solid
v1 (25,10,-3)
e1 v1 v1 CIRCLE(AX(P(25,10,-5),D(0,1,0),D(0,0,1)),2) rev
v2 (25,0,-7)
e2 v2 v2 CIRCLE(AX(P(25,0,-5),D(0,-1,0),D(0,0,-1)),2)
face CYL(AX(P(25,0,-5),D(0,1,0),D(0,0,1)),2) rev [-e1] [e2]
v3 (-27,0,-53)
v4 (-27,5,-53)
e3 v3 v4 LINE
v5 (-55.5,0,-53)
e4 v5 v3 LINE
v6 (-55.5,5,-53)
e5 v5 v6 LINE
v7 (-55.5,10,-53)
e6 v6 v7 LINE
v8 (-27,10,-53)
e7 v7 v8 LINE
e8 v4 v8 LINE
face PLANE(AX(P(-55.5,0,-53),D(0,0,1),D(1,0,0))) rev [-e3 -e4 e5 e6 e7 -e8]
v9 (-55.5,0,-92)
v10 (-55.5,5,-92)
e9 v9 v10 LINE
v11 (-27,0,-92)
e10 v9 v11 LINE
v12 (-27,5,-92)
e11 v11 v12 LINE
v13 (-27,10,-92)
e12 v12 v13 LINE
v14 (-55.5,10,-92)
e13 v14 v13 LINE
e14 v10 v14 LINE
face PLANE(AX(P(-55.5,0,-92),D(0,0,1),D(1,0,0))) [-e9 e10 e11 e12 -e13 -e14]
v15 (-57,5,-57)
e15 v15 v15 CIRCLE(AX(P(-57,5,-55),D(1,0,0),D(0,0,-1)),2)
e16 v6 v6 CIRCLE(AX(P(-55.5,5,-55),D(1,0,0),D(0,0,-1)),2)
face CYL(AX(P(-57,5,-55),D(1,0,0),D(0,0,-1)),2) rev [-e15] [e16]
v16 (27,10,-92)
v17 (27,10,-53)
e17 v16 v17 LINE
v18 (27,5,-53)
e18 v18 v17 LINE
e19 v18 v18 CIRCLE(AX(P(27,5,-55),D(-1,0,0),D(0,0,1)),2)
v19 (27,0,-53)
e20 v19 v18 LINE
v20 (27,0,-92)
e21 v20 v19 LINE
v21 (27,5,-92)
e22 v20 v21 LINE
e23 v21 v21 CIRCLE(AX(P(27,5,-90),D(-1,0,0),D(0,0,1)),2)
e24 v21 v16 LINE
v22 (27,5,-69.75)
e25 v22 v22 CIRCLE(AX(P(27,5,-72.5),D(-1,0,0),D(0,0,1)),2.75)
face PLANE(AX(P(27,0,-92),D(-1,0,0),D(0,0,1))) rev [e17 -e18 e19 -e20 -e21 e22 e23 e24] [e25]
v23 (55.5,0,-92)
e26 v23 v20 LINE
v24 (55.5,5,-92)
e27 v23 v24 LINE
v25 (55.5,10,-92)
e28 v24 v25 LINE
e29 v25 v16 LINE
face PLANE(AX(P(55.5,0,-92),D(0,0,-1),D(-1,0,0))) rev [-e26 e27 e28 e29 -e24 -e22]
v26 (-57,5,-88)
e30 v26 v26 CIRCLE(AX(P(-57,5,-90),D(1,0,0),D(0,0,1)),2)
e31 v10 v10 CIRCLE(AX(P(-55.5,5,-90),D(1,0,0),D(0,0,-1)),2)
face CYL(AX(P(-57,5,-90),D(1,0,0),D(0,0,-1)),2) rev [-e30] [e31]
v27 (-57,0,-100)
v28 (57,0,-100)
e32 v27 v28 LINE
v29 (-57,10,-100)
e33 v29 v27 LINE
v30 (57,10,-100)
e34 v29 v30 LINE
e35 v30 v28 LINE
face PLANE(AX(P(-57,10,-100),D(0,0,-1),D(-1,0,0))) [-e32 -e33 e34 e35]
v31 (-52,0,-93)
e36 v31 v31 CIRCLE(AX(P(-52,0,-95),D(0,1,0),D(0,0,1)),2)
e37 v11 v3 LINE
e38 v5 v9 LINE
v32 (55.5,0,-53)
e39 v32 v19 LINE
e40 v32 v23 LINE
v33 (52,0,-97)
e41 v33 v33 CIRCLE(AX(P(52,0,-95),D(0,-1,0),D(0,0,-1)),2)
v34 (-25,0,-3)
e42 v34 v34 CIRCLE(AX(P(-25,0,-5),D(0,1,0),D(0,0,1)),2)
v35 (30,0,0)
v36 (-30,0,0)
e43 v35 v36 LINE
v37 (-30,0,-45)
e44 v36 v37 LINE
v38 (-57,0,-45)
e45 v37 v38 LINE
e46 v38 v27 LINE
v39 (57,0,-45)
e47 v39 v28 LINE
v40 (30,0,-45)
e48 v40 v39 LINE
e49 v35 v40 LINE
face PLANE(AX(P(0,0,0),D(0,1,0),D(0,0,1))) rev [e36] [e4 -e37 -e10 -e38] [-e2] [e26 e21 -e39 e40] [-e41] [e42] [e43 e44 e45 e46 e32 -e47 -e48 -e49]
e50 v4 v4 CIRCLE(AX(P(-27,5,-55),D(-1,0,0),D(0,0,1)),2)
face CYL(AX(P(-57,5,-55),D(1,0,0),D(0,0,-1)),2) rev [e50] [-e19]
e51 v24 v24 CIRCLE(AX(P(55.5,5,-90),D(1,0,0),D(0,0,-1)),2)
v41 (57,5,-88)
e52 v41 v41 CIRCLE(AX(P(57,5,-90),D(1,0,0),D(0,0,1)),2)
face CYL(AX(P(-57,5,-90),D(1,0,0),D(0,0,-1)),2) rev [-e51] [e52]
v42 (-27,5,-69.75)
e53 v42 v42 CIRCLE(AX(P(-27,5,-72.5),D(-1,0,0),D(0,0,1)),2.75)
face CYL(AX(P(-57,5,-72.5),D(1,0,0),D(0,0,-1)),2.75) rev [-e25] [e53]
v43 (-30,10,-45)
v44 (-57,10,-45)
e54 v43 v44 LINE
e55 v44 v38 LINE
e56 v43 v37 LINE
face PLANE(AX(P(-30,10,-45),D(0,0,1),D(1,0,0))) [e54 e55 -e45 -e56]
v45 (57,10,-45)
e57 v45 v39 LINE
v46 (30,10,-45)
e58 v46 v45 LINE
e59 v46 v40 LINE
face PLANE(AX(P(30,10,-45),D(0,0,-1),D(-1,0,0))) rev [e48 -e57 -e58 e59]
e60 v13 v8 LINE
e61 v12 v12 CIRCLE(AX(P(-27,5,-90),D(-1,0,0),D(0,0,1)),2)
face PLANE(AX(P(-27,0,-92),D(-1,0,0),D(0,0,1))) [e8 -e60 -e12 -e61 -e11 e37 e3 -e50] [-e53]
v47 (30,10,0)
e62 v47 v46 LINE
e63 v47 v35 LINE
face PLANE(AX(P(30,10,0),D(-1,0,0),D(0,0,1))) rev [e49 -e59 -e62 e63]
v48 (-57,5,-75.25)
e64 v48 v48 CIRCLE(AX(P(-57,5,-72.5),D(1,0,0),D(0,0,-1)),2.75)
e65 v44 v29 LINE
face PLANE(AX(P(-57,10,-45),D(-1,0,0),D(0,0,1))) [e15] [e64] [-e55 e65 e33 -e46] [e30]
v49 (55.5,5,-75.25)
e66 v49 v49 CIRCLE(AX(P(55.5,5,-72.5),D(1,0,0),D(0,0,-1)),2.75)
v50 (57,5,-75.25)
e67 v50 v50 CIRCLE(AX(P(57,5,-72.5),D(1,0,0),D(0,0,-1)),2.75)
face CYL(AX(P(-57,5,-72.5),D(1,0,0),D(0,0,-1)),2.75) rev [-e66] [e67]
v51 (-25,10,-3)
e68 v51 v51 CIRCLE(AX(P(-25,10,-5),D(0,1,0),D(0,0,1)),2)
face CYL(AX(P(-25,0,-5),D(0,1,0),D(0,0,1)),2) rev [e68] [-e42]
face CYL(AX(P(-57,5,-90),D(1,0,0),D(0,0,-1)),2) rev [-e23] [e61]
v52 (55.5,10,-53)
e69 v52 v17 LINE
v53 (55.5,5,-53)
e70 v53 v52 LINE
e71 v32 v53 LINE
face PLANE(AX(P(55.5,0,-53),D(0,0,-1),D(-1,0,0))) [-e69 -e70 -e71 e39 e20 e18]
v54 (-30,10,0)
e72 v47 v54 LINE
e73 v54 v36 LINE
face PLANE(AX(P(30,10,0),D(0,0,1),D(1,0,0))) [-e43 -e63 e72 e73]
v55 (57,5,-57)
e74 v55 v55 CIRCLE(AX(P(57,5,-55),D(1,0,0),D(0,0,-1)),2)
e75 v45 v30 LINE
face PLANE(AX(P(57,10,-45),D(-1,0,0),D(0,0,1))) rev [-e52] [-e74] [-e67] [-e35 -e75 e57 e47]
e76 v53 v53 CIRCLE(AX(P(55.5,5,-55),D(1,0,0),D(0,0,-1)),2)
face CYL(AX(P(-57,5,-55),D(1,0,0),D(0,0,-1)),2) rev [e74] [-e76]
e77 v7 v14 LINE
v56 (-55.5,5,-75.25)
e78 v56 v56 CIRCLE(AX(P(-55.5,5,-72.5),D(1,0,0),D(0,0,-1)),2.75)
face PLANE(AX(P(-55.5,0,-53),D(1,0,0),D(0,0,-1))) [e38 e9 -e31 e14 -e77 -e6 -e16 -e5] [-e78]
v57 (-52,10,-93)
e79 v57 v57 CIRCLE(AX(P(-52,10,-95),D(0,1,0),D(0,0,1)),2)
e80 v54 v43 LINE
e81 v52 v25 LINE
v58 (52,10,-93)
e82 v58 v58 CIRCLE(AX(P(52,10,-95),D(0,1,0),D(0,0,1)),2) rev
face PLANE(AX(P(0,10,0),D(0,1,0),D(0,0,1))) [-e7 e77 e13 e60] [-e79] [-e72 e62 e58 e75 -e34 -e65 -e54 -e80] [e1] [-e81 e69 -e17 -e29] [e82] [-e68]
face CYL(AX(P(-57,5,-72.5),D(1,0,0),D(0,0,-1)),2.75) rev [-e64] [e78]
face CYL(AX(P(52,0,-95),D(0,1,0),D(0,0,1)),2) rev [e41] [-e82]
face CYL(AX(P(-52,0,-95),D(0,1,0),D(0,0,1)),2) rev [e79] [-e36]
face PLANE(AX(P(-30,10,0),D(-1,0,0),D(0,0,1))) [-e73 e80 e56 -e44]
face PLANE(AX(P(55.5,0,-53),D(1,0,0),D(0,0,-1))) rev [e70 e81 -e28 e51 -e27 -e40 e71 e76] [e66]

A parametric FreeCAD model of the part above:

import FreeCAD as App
import Part
import Sketcher

V = App.Vector
Q = App.Units.Quantity


def add_polygon(sketch, points):
    """Adds a closed chain of lines whose ends are joined by coincident constraints."""
    first, n = sketch.GeometryCount, len(points)
    for a, b in zip(points, points[1:] + points[:1]):
        sketch.addGeometry(Part.LineSegment(App.Vector(*a, 0), App.Vector(*b, 0)), False)
    for i in range(n):
        sketch.addConstraint(Sketcher.Constraint("Coincident", first + i, 2, first + (i + 1) % n, 1))

doc = App.newDocument("Part")
params = doc.addObject("Spreadsheet::Sheet", "Params")
for row, (alias, value) in enumerate([
    ("sketch1_width", "60 mm"),
    ("sketch1_width2", "27 mm"),
    ("sketch1_height", "45 mm"),
    ("sketch1_height2", "55 mm"),
    ("pad1_length", "10 mm"),
    ("sketch2_diameter", "4 mm"),
    ("sketch2_height", "39 mm"),
    ("sketch2_width", "28.5 mm"),
    ("sketch3_diameter", "4 mm"),
    ("sketch3_diameter2", "5.5 mm"),
], start=1):
    params.set(f"A{row}", alias)
    params.set(f"B{row}", "=" + value)
    params.setAlias(f"B{row}", alias)

body = doc.addObject("PartDesign::Body", "Body")

sketch1 = body.newObject("Sketcher::SketchObject", "Sketch")
sketch1.AttachmentSupport = (doc.getObject("XZ_Plane"), [""])
sketch1.MapMode = "FlatFace"
add_polygon(sketch1, [(-30, 0), (30, 0), (30, -45), (57, -45), (57, -100), (-57, -100), (-57, -45), (-30, -45)])
sketch1.addConstraint([
    Sketcher.Constraint("Horizontal", 0),
    Sketcher.Constraint("Vertical", 1),
    Sketcher.Constraint("Horizontal", 2),
    Sketcher.Constraint("Vertical", 3),
    Sketcher.Constraint("Horizontal", 4),
    Sketcher.Constraint("Vertical", 5),
    Sketcher.Constraint("Horizontal", 6),
    Sketcher.Constraint("Vertical", 7),
    Sketcher.Constraint("Symmetric", 0, 2, 7, 2, -1, 1),
    Sketcher.Constraint("Symmetric", 2, 2, 5, 2, -2),
    Sketcher.Constraint("DistanceX", 0, 1, 0, 2, Q("60 mm")),
    Sketcher.Constraint("DistanceX", 2, 1, 2, 2, Q("27 mm")),
    Sketcher.Constraint("DistanceY", 1, 2, 1, 1, Q("45 mm")),
    Sketcher.Constraint("DistanceY", 3, 2, 3, 1, Q("55 mm")),
])
sketch1.setExpression("Constraints[18]", "Params.sketch1_width")
sketch1.setExpression("Constraints[19]", "Params.sketch1_width2")
sketch1.setExpression("Constraints[20]", "Params.sketch1_height")
sketch1.setExpression("Constraints[21]", "Params.sketch1_height2")
pad1 = body.newObject("PartDesign::Pad", "Pad")
pad1.Profile = sketch1
pad1.setExpression("Length", "Params.pad1_length")
pad1.Reversed = True

sketch2 = body.newObject("Sketcher::SketchObject", "Sketch001")
sketch2.AttachmentSupport = (doc.getObject("XZ_Plane"), [""])
sketch2.MapMode = "FlatFace"
sketch2.AttachmentOffset = App.Placement(V(0, 0, -10), App.Rotation())
sketch2.addGeometry(Part.Circle(V(-52, -95, 0), V(0, 0, 1), 2), False)
sketch2.addGeometry(Part.Circle(V(52, -95, 0), V(0, 0, 1), 2), False)
sketch2.addGeometry(Part.Circle(V(-25, -5, 0), V(0, 0, 1), 2), False)
sketch2.addGeometry(Part.Circle(V(25, -5, 0), V(0, 0, 1), 2), False)
add_polygon(sketch2, [(-55.5, -92), (-55.5, -53), (-27, -53), (-27, -92)])
add_polygon(sketch2, [(27, -92), (27, -53), (55.5, -53), (55.5, -92)])
sketch2.addConstraint([
    Sketcher.Constraint("Vertical", 4),
    Sketcher.Constraint("Horizontal", 5),
    Sketcher.Constraint("Vertical", 6),
    Sketcher.Constraint("Horizontal", 7),
    Sketcher.Constraint("Vertical", 8),
    Sketcher.Constraint("Horizontal", 9),
    Sketcher.Constraint("Vertical", 10),
    Sketcher.Constraint("Horizontal", 11),
    Sketcher.Constraint("Equal", 0, 1),
    Sketcher.Constraint("Equal", 1, 2),
    Sketcher.Constraint("Equal", 2, 3),
    Sketcher.Constraint("Symmetric", 0, 3, 1, 3, -2),
    Sketcher.Constraint("Symmetric", 2, 3, 3, 3, -2),
    Sketcher.Constraint("Symmetric", 5, 2, 8, 2, -2),
    Sketcher.Constraint("Symmetric", 7, 2, 10, 2, -2),
    Sketcher.Constraint("Diameter", 0, Q("4 mm")),
    Sketcher.Constraint("DistanceY", 4, 1, 4, 2, Q("39 mm")),
    Sketcher.Constraint("DistanceX", 5, 1, 5, 2, Q("28.5 mm")),
    Sketcher.Constraint("DistanceX", 0, 3, -1, 1, Q("52 mm")),
    Sketcher.Constraint("DistanceY", 0, 3, -1, 1, Q("95 mm")),
    Sketcher.Constraint("DistanceX", 2, 3, -1, 1, Q("25 mm")),
    Sketcher.Constraint("DistanceY", 2, 3, -1, 1, Q("5 mm")),
    Sketcher.Constraint("DistanceY", 4, 2, -1, 1, Q("53 mm")),
    Sketcher.Constraint("DistanceX", 5, 2, -1, 1, Q("27 mm")),
])
sketch2.setExpression("Constraints[23]", "Params.sketch2_diameter")
sketch2.setExpression("Constraints[24]", "Params.sketch2_height")
sketch2.setExpression("Constraints[25]", "Params.sketch2_width")
pocket1 = body.newObject("PartDesign::Pocket", "Pocket")
pocket1.Profile = sketch2
pocket1.Type = "ThroughAll"
pocket1.Midplane = True

sketch3 = body.newObject("Sketcher::SketchObject", "Sketch002")
sketch3.AttachmentSupport = (doc.getObject("YZ_Plane"), [""])
sketch3.MapMode = "FlatFace"
sketch3.AttachmentOffset = App.Placement(V(0, 0, 57), App.Rotation())
sketch3.addGeometry([
    Part.Circle(V(5, -55, 0), V(0, 0, 1), 2),
    Part.Circle(V(5, -90, 0), V(0, 0, 1), 2),
    Part.Circle(V(5, -72.5, 0), V(0, 0, 1), 2.8),
], False)
sketch3.addConstraint([
    Sketcher.Constraint("Equal", 0, 1),
    Sketcher.Constraint("Vertical", 0, 3, 1, 3),
    Sketcher.Constraint("Vertical", 1, 3, 2, 3),
    Sketcher.Constraint("Diameter", 0, Q("4 mm")),
    Sketcher.Constraint("Diameter", 2, Q("5.5 mm")),
    Sketcher.Constraint("DistanceX", -1, 1, 0, 3, Q("5 mm")),
    Sketcher.Constraint("DistanceY", 0, 3, -1, 1, Q("55 mm")),
    Sketcher.Constraint("DistanceY", 1, 3, -1, 1, Q("90 mm")),
    Sketcher.Constraint("DistanceY", 2, 3, -1, 1, Q("72.5 mm")),
])
sketch3.setExpression("Constraints[3]", "Params.sketch3_diameter")
sketch3.setExpression("Constraints[4]", "Params.sketch3_diameter2")
pocket2 = body.newObject("PartDesign::Pocket", "Pocket001")
pocket2.Profile = sketch3
pocket2.Type = "ThroughAll"

doc.recompute()
